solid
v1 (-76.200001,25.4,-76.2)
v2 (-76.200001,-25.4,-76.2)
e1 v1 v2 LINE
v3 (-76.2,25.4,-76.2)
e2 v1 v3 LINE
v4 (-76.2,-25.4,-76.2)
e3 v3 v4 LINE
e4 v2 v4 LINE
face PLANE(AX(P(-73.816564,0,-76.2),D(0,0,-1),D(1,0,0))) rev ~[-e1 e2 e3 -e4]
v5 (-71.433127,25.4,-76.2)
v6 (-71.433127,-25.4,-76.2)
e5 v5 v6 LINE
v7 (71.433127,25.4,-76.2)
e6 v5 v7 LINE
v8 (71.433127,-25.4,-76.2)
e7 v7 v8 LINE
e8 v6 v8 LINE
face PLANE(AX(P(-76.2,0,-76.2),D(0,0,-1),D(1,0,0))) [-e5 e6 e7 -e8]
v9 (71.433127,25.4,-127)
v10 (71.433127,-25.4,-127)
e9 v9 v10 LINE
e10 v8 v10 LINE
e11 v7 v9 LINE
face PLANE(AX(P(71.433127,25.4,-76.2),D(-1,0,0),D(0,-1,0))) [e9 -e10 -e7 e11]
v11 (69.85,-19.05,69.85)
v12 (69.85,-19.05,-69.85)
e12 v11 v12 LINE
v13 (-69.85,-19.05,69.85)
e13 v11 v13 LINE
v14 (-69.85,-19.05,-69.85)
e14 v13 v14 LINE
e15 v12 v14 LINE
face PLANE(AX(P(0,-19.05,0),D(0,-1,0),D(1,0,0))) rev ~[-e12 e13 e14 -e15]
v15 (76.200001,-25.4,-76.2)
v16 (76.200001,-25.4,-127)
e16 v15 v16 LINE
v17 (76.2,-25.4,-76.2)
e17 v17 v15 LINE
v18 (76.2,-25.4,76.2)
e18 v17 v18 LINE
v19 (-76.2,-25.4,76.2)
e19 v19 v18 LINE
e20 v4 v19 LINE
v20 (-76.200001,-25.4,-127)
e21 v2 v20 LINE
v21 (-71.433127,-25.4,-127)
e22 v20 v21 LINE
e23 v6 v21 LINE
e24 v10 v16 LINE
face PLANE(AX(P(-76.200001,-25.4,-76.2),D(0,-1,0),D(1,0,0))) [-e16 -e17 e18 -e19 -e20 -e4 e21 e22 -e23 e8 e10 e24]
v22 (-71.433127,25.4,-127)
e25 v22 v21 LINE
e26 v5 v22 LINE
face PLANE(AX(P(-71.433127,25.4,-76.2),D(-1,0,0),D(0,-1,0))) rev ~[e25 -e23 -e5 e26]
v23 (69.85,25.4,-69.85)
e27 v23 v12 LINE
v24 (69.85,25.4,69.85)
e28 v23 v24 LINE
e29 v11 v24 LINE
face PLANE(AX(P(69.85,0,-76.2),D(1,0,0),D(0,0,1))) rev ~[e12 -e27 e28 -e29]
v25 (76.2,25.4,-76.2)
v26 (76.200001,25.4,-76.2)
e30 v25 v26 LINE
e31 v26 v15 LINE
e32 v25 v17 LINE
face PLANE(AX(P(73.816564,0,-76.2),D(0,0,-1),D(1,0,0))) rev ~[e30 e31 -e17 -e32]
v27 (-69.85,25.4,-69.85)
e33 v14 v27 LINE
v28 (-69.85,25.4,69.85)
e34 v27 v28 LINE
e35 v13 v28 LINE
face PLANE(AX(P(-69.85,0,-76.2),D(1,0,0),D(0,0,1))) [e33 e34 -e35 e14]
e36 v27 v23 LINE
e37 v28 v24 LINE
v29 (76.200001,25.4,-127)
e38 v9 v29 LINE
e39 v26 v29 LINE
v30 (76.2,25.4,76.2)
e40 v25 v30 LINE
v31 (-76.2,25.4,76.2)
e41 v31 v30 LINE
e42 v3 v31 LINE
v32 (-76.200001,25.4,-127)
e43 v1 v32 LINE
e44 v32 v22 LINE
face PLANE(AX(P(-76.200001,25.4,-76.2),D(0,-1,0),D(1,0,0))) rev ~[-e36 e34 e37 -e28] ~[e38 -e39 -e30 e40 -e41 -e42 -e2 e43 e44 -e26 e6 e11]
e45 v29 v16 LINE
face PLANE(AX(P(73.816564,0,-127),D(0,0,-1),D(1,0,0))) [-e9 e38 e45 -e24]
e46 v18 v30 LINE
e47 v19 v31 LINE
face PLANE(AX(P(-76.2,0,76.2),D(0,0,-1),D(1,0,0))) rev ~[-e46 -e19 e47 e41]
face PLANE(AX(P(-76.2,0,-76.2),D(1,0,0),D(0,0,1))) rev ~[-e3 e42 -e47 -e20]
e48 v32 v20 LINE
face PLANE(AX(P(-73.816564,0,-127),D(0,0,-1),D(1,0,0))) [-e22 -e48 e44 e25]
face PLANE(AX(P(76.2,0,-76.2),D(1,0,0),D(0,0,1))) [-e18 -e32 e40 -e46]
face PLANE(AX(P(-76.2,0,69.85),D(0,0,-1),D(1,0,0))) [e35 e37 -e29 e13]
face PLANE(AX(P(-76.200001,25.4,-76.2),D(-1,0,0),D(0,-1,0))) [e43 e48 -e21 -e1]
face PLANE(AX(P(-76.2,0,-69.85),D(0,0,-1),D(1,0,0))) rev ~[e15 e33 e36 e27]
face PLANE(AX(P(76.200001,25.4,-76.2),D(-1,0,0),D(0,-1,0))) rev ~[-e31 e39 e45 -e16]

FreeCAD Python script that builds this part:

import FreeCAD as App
import Part
import Sketcher

V = App.Vector
Q = App.Units.Quantity


def faces_at(feature, points):
    """Names of the faces that lie closest to the given points."""
    faces = feature.Shape.Faces
    near = lambda p: min(range(len(faces)), key=lambda i: faces[i].distToShape(Part.Vertex(*p))[0])
    return sorted({f"Face{near(p) + 1}" for p in points})

doc = App.newDocument("Part")
body = doc.addObject("PartDesign::Body", "Body")

# Sketch on XZ plane
sketch1 = doc.addObject("Sketcher::SketchObject", "Sketch")
body.addObject(sketch1)
sketch1.AttachmentSupport = (doc.XZ_Plane, [""])
sketch1.MapMode = "FlatFace"
sketch1.addGeometry([
    Part.LineSegment(V(-76, 76, 0), V(-76, -76, 0)),
    Part.LineSegment(V(-76, -76, 0), V(76, -76, 0)),
    Part.LineSegment(V(76, -76, 0), V(76, 76, 0)),
    Part.LineSegment(V(76, 76, 0), V(-76, 76, 0)),
], False)
sketch1.addConstraint([
    Sketcher.Constraint("Coincident", 0, 2, 1, 1),
    Sketcher.Constraint("Coincident", 1, 2, 2, 1),
    Sketcher.Constraint("Coincident", 2, 2, 3, 1),
    Sketcher.Constraint("Coincident", 3, 2, 0, 1),
    Sketcher.Constraint("Vertical", 0),
    Sketcher.Constraint("Horizontal", 1),
    Sketcher.Constraint("Vertical", 2),
    Sketcher.Constraint("Horizontal", 3),
    Sketcher.Constraint("Symmetric", 0, 2, 2, 2, -1, 1),
    Sketcher.Constraint("Equal", 3, 0),
    Sketcher.Constraint("DistanceX", 1, 1, 1, 2, Q("6 in")),
])
pad1 = doc.addObject("PartDesign::Pad", "Pad")
body.addObject(pad1)
pad1.Profile = sketch1
pad1.Length = Q("2 in")
pad1.Midplane = True
doc.recompute()

thickness = doc.addObject("PartDesign::Thickness", "Thickness")
body.addObject(thickness)
thickness.Base = (pad1, faces_at(pad1, [(0, 25.4, 0)]))
thickness.Value = Q("0.25 in")
thickness.Reversed = True
thickness.Join = "Arc"

# Sketch on XY plane
sketch2 = doc.addObject("Sketcher::SketchObject", "Sketch001")
body.addObject(sketch2)
sketch2.AttachmentSupport = (doc.XY_Plane, [""])
sketch2.MapMode = "FlatFace"
sketch2.AttachmentOffset = App.Placement(V(0, 0, -3 * 25.4), App.Rotation())
sketch2.addGeometry([
    Part.LineSegment(V(-76.2, -25.4, 0), V(-76.2, 25.4, 0)),  # 0
    Part.LineSegment(V(-76.2, 25.4, 0), V(-71.4, 25.4, 0)),  # 1
    Part.LineSegment(V(-71.4, 25.4, 0), V(-71.4, -25.4, 0)),  # 2
    Part.LineSegment(V(-71.4, -25.4, 0), V(-76.2, -25.4, 0)),  # 3
    Part.LineSegment(V(71.4, -25.4, 0), V(71.4, 25.4, 0)),  # 4
    Part.LineSegment(V(71.4, 25.4, 0), V(76.2, 25.4, 0)),  # 5
    Part.LineSegment(V(76.2, 25.4, 0), V(76.2, -25.4, 0)),  # 6
    Part.LineSegment(V(76.2, -25.4, 0), V(71.4, -25.4, 0)),  # 7
], False)
sketch2.addConstraint([
    Sketcher.Constraint("Coincident", 0, 2, 1, 1),
    Sketcher.Constraint("Coincident", 1, 2, 2, 1),
    Sketcher.Constraint("Coincident", 2, 2, 3, 1),
    Sketcher.Constraint("Coincident", 3, 2, 0, 1),
    Sketcher.Constraint("Coincident", 4, 2, 5, 1),
    Sketcher.Constraint("Coincident", 5, 2, 6, 1),
    Sketcher.Constraint("Coincident", 6, 2, 7, 1),
    Sketcher.Constraint("Coincident", 7, 2, 4, 1),
    Sketcher.Constraint("Vertical", 0),
    Sketcher.Constraint("Horizontal", 1),
    Sketcher.Constraint("Vertical", 2),
    Sketcher.Constraint("Horizontal", 3),
    Sketcher.Constraint("Vertical", 4),
    Sketcher.Constraint("Horizontal", 5),
    Sketcher.Constraint("Vertical", 6),
    Sketcher.Constraint("Horizontal", 7),
    Sketcher.Constraint("Symmetric", 2, 2, 4, 2, -1, 1),
    Sketcher.Constraint("Symmetric", 0, 2, 6, 2, -1, 1),
    Sketcher.Constraint("Horizontal", 1, 2, 4, 2),
    Sketcher.Constraint("DistanceY", 0, 1, 0, 2, Q("2 in")),
    Sketcher.Constraint("DistanceX", 0, 2, -1, 1, Q("3 in")),
    Sketcher.Constraint("DistanceX", 1, 1, 1, 2, 4.766873),
])
pad2 = doc.addObject("PartDesign::Pad", "Pad001")
body.addObject(pad2)
pad2.Profile = sketch2
pad2.Length = Q("2 in")
pad2.Reversed = True

doc.recompute()
